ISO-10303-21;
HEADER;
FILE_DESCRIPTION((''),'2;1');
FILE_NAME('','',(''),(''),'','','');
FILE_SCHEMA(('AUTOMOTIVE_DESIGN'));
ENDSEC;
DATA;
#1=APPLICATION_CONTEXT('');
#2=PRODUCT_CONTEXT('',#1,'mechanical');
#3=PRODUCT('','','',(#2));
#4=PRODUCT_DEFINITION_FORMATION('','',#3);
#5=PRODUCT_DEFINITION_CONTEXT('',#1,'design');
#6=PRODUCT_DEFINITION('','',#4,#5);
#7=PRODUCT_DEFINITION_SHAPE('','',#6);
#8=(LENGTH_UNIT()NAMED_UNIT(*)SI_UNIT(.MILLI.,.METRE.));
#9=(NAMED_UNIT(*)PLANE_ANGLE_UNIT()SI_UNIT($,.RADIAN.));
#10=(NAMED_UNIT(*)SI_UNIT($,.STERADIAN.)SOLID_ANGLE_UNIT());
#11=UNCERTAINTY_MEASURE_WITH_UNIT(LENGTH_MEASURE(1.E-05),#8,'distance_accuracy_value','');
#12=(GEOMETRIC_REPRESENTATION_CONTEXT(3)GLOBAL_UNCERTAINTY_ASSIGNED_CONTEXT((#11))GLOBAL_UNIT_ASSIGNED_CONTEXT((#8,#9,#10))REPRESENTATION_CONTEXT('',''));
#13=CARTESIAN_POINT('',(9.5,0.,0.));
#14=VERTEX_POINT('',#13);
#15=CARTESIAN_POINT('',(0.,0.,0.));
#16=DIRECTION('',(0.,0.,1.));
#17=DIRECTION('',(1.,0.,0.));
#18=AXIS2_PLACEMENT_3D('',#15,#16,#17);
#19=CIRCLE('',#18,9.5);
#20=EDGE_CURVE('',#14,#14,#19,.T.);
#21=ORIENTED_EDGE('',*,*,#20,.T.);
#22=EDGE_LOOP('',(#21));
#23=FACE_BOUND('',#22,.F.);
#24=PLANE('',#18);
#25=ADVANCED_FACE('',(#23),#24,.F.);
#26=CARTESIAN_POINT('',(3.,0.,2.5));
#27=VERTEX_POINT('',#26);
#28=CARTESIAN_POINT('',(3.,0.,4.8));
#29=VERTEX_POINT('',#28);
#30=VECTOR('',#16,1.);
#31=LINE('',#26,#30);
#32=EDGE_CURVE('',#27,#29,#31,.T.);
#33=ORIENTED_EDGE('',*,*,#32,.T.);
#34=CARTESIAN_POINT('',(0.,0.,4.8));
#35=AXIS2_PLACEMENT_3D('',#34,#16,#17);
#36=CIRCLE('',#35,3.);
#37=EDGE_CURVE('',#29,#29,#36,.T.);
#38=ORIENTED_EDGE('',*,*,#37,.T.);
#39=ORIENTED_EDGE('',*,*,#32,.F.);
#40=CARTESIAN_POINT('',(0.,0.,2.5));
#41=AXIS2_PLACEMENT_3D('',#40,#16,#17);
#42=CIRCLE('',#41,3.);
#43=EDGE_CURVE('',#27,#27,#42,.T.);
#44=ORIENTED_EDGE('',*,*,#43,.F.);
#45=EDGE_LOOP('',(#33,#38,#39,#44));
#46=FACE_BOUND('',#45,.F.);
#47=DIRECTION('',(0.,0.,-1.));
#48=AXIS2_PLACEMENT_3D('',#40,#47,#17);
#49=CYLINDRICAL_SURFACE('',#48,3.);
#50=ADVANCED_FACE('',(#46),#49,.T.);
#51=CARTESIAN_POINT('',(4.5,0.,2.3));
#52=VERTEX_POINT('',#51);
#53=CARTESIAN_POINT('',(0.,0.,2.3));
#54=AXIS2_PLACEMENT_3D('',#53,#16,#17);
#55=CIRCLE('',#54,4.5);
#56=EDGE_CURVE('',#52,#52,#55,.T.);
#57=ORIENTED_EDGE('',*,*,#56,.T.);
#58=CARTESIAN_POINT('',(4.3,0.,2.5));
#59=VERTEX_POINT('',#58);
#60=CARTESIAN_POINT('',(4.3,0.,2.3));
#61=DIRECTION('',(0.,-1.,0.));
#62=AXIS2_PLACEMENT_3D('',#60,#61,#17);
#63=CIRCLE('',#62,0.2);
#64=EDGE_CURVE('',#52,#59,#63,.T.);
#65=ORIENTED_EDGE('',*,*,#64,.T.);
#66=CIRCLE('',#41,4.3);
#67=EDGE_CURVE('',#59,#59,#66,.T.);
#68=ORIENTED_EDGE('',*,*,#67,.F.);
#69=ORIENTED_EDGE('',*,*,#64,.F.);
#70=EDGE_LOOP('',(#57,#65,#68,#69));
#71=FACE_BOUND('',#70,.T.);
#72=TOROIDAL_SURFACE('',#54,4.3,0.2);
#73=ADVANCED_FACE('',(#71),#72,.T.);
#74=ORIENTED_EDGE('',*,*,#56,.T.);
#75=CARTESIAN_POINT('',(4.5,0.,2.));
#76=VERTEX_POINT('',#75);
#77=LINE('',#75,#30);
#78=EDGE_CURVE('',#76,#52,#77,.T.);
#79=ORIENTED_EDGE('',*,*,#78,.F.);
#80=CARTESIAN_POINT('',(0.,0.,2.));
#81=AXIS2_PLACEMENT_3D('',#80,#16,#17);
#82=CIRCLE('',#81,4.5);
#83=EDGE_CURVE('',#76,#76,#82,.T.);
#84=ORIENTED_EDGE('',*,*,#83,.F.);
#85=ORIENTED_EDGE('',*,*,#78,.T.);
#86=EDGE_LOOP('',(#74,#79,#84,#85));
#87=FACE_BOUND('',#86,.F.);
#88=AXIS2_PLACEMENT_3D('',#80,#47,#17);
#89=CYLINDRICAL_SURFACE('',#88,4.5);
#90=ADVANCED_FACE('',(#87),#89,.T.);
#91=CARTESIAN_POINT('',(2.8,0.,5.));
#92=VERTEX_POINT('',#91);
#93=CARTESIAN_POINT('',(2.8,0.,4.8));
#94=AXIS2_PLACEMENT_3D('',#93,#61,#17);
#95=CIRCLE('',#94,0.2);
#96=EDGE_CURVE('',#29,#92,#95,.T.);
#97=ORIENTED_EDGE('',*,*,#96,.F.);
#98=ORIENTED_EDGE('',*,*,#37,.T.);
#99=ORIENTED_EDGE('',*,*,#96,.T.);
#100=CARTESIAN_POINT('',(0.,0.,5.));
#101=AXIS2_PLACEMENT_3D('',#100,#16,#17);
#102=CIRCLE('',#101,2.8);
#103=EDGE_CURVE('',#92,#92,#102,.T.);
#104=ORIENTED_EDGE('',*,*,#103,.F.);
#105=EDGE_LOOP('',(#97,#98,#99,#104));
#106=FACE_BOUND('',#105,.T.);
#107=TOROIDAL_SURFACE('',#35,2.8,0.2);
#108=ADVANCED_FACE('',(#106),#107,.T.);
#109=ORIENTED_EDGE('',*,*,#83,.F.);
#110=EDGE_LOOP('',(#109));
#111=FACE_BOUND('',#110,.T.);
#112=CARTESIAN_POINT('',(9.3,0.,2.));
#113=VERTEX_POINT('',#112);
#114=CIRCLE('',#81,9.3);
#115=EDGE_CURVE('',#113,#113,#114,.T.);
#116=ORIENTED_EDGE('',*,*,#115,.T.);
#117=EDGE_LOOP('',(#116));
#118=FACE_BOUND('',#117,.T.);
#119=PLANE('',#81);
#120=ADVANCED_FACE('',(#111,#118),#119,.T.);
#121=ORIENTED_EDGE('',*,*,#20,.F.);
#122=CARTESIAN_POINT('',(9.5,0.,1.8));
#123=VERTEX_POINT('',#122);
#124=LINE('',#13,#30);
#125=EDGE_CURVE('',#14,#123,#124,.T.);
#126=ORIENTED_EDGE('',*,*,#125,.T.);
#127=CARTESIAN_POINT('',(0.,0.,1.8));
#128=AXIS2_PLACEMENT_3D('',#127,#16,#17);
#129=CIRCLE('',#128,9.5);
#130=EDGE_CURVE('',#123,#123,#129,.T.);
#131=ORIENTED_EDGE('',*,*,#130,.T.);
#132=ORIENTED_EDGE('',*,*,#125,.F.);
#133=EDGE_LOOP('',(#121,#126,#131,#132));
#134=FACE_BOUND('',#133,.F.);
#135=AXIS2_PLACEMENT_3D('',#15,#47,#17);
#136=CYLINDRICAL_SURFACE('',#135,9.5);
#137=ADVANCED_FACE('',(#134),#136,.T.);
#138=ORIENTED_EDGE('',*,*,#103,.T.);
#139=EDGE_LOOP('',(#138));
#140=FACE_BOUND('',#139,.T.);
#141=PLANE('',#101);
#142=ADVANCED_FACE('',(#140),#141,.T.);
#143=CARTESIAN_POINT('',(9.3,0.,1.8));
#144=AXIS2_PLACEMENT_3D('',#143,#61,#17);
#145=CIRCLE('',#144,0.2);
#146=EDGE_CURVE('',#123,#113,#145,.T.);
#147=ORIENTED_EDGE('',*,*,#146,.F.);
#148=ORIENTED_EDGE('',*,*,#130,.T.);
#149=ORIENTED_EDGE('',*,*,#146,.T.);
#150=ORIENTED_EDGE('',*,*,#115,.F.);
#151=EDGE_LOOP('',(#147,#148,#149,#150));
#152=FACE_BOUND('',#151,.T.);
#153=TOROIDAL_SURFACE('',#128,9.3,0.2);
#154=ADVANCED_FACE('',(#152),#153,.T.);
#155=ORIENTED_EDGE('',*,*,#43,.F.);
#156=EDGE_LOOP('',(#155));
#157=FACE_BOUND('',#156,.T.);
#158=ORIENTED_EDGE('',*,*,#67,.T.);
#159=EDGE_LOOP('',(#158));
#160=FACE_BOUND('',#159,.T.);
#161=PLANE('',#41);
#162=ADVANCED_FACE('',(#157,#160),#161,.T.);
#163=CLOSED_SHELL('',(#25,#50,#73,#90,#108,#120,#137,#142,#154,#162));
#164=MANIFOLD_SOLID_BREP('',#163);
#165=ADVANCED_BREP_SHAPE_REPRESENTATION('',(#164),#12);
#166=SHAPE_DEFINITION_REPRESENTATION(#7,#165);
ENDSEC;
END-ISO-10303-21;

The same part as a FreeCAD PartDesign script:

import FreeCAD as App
import Part
import Sketcher
Q = App.Units.Quantity


def edges_at(feature, points):
    """Names of the edges that pass closest to the given points."""
    edges = feature.Shape.Edges
    near = lambda p: min(range(len(edges)), key=lambda i: edges[i].distToShape(Part.Vertex(*p))[0])
    return sorted({f"Edge{near(p) + 1}" for p in points})

doc = App.newDocument("Part")
body = doc.addObject("PartDesign::Body", "Body")

sketch1 = body.newObject("Sketcher::SketchObject", "Sketch")
sketch1.AttachmentSupport = (doc.getObject("XY_Plane"), [""])
sketch1.MapMode = "FlatFace"
sketch1.addGeometry(Part.Circle(App.Vector(0, 0, 0), App.Vector(0, 0, 1), 10), False)
sketch1.addConstraint(Sketcher.Constraint("Coincident", 0, 3, -1, 1))
sketch1.addConstraint(Sketcher.Constraint("Diameter", 0, Q("19 mm")))
pad1 = body.newObject("PartDesign::Pad", "Pad")
pad1.Profile = sketch1
pad1.Length = 2

sketch2 = body.newObject("Sketcher::SketchObject", "Sketch001")
sketch2.AttachmentSupport = (doc.getObject("XY_Plane"), [""])
sketch2.MapMode = "FlatFace"
sketch2.AttachmentOffset = App.Placement(App.Vector(0, 0, 2), App.Rotation())
sketch2.addGeometry(Part.Circle(App.Vector(0, 0, 0), App.Vector(0, 0, 1), 4.5), False)
sketch2.addConstraint(Sketcher.Constraint("Coincident", 0, 3, -1, 1))
sketch2.addConstraint(Sketcher.Constraint("Diameter", 0, Q("9 mm")))
pad2 = body.newObject("PartDesign::Pad", "Pad001")
pad2.Profile = sketch2
pad2.Length = 0.5

sketch3 = body.newObject("Sketcher::SketchObject", "Sketch002")
sketch3.AttachmentSupport = (doc.getObject("XY_Plane"), [""])
sketch3.MapMode = "FlatFace"
sketch3.AttachmentOffset = App.Placement(App.Vector(0, 0, 2.5), App.Rotation())
sketch3.addGeometry(Part.Circle(App.Vector(0, 0, 0), App.Vector(0, 0, 1), 3), False)
sketch3.addConstraint(Sketcher.Constraint("Coincident", 0, 3, -1, 1))
sketch3.addConstraint(Sketcher.Constraint("Diameter", 0, Q("6 mm")))
pad3 = body.newObject("PartDesign::Pad", "Pad002")
pad3.Profile = sketch3
pad3.Length = 2.5
doc.recompute()

fillet = body.newObject("PartDesign::Fillet", "Fillet")
fillet.Base = (pad3, edges_at(pad3, [(-3, 0, 5), (-4.5, 0, 2.5), (-9.5, 0, 2)]))
fillet.Radius = 0.2

doc.recompute()
